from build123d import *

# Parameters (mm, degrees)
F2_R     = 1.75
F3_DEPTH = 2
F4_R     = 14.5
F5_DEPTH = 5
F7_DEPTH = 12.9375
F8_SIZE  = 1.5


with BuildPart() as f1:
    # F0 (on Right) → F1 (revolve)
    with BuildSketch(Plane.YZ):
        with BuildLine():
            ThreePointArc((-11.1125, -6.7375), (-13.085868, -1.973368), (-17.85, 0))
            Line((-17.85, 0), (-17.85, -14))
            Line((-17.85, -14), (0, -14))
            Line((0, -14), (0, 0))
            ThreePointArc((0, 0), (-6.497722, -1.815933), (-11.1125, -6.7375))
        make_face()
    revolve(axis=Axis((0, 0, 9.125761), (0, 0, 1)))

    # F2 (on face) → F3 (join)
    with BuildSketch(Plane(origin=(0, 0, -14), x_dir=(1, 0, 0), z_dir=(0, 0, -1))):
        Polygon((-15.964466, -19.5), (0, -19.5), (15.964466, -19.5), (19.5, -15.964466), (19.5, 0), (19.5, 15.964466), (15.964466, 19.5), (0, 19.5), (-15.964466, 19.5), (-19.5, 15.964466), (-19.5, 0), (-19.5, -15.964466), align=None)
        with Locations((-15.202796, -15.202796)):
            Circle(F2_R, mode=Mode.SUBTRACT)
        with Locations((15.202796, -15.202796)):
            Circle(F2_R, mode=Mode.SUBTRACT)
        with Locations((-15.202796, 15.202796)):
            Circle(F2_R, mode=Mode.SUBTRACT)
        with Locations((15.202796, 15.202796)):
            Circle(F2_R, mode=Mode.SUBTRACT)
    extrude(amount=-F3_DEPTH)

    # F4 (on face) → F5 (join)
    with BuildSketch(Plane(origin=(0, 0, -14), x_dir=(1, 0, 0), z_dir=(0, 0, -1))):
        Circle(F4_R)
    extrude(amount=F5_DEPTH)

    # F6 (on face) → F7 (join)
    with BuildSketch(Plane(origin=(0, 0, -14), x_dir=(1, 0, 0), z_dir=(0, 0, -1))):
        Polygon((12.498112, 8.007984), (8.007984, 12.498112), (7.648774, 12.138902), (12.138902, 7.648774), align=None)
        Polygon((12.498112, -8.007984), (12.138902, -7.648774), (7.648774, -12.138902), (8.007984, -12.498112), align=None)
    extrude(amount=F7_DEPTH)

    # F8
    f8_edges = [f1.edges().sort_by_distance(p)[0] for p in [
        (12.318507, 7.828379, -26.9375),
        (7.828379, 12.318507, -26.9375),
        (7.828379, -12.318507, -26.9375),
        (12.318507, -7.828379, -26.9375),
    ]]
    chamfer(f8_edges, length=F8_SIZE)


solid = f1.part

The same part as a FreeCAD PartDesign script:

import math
import FreeCAD as App
import Part
import Sketcher
from FreeCAD import Vector
Q = App.Units.Quantity


def edges_at(feature, points):
    """Names of the edges that pass closest to the given points."""
    edges = feature.Shape.Edges
    near = lambda p: min(range(len(edges)), key=lambda i: edges[i].distToShape(Part.Vertex(*p))[0])
    return sorted({f"Edge{near(p) + 1}" for p in points})


def add_polygon(sketch, points):
    """Adds a closed chain of lines whose ends are joined by coincident constraints."""
    first, n = sketch.GeometryCount, len(points)
    for a, b in zip(points, points[1:] + points[:1]):
        sketch.addGeometry(Part.LineSegment(App.Vector(*a, 0), App.Vector(*b, 0)), False)
    for i in range(n):
        sketch.addConstraint(Sketcher.Constraint("Coincident", first + i, 2, first + (i + 1) % n, 1))

doc = App.newDocument("Part")
body = doc.addObject("PartDesign::Body", "Body")

# Sketch on YZ plane
sketch1 = body.newObject("Sketcher::SketchObject", "Sketch")
sketch1.AttachmentSupport = (doc.getObject("YZ_Plane"), [""])
sketch1.MapMode = "FlatFace"
sketch1.addGeometry(Part.ArcOfCircle(Part.Circle(Vector(-17.85, -6.7375, 0), Vector(0, 0, 1), 6.7375), math.radians(-0.000002), math.radians(90.000002)), False)
sketch1.addGeometry(Part.LineSegment(Vector(-17.85, 0, 0), Vector(-17.85, -14, 0)), False)
sketch1.addGeometry(Part.LineSegment(Vector(-17.85, -14, 0), Vector(0, -14, 0)), False)
sketch1.addGeometry(Part.LineSegment(Vector(0, -14, 0), Vector(0, 0, 0)), False)
sketch1.addGeometry(Part.ArcOfCircle(Part.Circle(Vector(0.000001, -12.532956, 0), Vector(0, 0, 1), 12.532956), math.radians(90.000005), math.radians(152.456796)), False)
sketch1.addConstraint(Sketcher.Constraint("Coincident", 0, 2, 1, 1))
sketch1.addConstraint(Sketcher.Constraint("Coincident", 1, 2, 2, 1))
sketch1.addConstraint(Sketcher.Constraint("Coincident", 2, 2, 3, 1))
sketch1.addConstraint(Sketcher.Constraint("Coincident", 3, 2, 4, 1))
sketch1.addConstraint(Sketcher.Constraint("Coincident", 4, 2, 0, 1))
sketch1.addConstraint(Sketcher.Constraint("Vertical", 1))
sketch1.addConstraint(Sketcher.Constraint("Horizontal", 2))
sketch1.addConstraint(Sketcher.Constraint("Vertical", 3))
sketch1.addConstraint(Sketcher.Constraint("Coincident", 3, 2, -1, 1))
sketch1.addConstraint(Sketcher.Constraint("PointOnObject", 4, 3, -2))
sketch1.addConstraint(Sketcher.Constraint("PointOnObject", 0, 2, -1))
sketch1.addConstraint(Sketcher.Constraint("Horizontal", 0, 3, 4, 2))
sketch1.addConstraint(Sketcher.Constraint("DistanceY", 1, 2, 1, 1, Q("14 mm")))
sketch1.addConstraint(Sketcher.Constraint("DistanceX", 2, 1, 2, 2, Q("17.85 mm")))
sketch1.addConstraint(Sketcher.Constraint("Radius", 0, Q("6.7375 mm")))
sketch1.addConstraint(Sketcher.Constraint("DistanceX", 0, 3, -1, 1, Q("17.85 mm")))
revolution = body.newObject("PartDesign::Revolution", "Revolution")
revolution.Profile = sketch1
revolution.ReferenceAxis = (sketch1, ["V_Axis"])
revolution.Angle = 360

# Sketch on XY plane
sketch2 = body.newObject("Sketcher::SketchObject", "Sketch001")
sketch2.AttachmentSupport = (doc.getObject("XY_Plane"), [""])
sketch2.MapMode = "FlatFace"
sketch2.AttachmentOffset = App.Placement(Vector(0, 0, -14), App.Rotation())
add_polygon(sketch2, [(-15.964466, 19.5), (15.964466, 19.5), (19.5, 15.964466), (19.5, -15.964466), (15.964466, -19.5), (-15.964466, -19.5), (-19.5, -15.964466), (-19.5, 15.964466)])  # lines 0-7
sketch2.addGeometry(Part.Circle(Vector(-15.202796, 15.202796, 0), Vector(0, 0, 1), 1.75), False)  # 8
sketch2.addGeometry(Part.Circle(Vector(15.202796, 15.202796, 0), Vector(0, 0, 1), 1.75), False)  # 9
sketch2.addGeometry(Part.Circle(Vector(-15.202796, -15.202796, 0), Vector(0, 0, 1), 1.75), False)  # 10
sketch2.addGeometry(Part.Circle(Vector(15.202796, -15.202796, 0), Vector(0, 0, 1), 1.75), False)  # 11
sketch2.addConstraint(Sketcher.Constraint("Horizontal", 0))
sketch2.addConstraint(Sketcher.Constraint("Vertical", 2))
sketch2.addConstraint(Sketcher.Constraint("Horizontal", 4))
sketch2.addConstraint(Sketcher.Constraint("Vertical", 6))
sketch2.addConstraint(Sketcher.Constraint("Equal", 8, 9))
sketch2.addConstraint(Sketcher.Constraint("Equal", 9, 10))
sketch2.addConstraint(Sketcher.Constraint("Equal", 10, 11))
sketch2.addConstraint(Sketcher.Constraint("Symmetric", 9, 3, 10, 3, -1, 1))
sketch2.addConstraint(Sketcher.Constraint("Symmetric", 8, 3, 11, 3, -1, 1))
sketch2.addConstraint(Sketcher.Constraint("Symmetric", 0, 2, 4, 2, -1, 1))
sketch2.addConstraint(Sketcher.Constraint("Symmetric", 1, 2, 5, 2, -1, 1))
sketch2.addConstraint(Sketcher.Constraint("Symmetric", 8, 3, 9, 3, -2))
sketch2.addConstraint(Sketcher.Constraint("Perpendicular", 1, 3))
sketch2.addConstraint(Sketcher.Constraint("Perpendicular", 5, 7))
sketch2.addConstraint(Sketcher.Constraint("Horizontal", 2, 2, 5, 2))
sketch2.addConstraint(Sketcher.Constraint("Horizontal", 1, 2, 6, 2))
sketch2.addConstraint(Sketcher.Constraint("Vertical", 0, 2, 3, 2))
sketch2.addConstraint(Sketcher.Constraint("Equal", 4, 2))
sketch2.addConstraint(Sketcher.Constraint("Diameter", 8, Q("3.5 mm")))
sketch2.addConstraint(Sketcher.Constraint("Distance", 1, Q("5 mm")))
sketch2.addConstraint(Sketcher.Constraint("DistanceY", -1, 1, 0, 2, Q("19.5 mm")))
sketch2.addConstraint(Sketcher.Constraint("DistanceX", 8, 3, 9, 3, Q("30.405592 mm")))
sketch2.addConstraint(Sketcher.Constraint("DistanceY", 10, 3, 8, 3, Q("30.405592 mm")))
pad1 = body.newObject("PartDesign::Pad", "Pad")
pad1.Profile = sketch2
pad1.Length = 2

# Sketch on XY plane
sketch3 = body.newObject("Sketcher::SketchObject", "Sketch002")
sketch3.AttachmentSupport = (doc.getObject("XY_Plane"), [""])
sketch3.MapMode = "FlatFace"
sketch3.AttachmentOffset = App.Placement(Vector(0, 0, -14), App.Rotation())
sketch3.addGeometry(Part.Circle(Vector(0, 0, 0), Vector(0, 0, 1), 14.5), False)
sketch3.addConstraint(Sketcher.Constraint("Coincident", 0, 3, -1, 1))
sketch3.addConstraint(Sketcher.Constraint("Diameter", 0, Q("29 mm")))
pad2 = body.newObject("PartDesign::Pad", "Pad001")
pad2.Profile = sketch3
pad2.Length = 5
pad2.Reversed = True

# Sketch on XY plane
sketch4 = body.newObject("Sketcher::SketchObject", "Sketch003")
sketch4.AttachmentSupport = (doc.getObject("XY_Plane"), [""])
sketch4.MapMode = "FlatFace"
sketch4.AttachmentOffset = App.Placement(Vector(0, 0, -14), App.Rotation())
add_polygon(sketch4, [(12.498112, -8.007984), (8.007984, -12.498112), (7.648774, -12.138902), (12.138902, -7.648774)])  # lines 0-3
add_polygon(sketch4, [(12.498112, 8.007984), (12.138902, 7.648774), (7.648774, 12.138902), (8.007984, 12.498112)])  # lines 4-7
sketch4.addConstraint(Sketcher.Constraint("Symmetric", 2, 2, 4, 2, -1))
sketch4.addConstraint(Sketcher.Constraint("Symmetric", 1, 2, 5, 2, -1))
sketch4.addConstraint(Sketcher.Constraint("Symmetric", 0, 2, 6, 2, -1))
sketch4.addConstraint(Sketcher.Constraint("Symmetric", 3, 2, 7, 2, -1))
sketch4.addConstraint(Sketcher.Constraint("Perpendicular", 0, 1))
sketch4.addConstraint(Sketcher.Constraint("Perpendicular", 1, 2))
sketch4.addConstraint(Sketcher.Constraint("Perpendicular", 2, 3))
sketch4.addConstraint(Sketcher.Constraint("Perpendicular", 3, 4))
sketch4.addConstraint(Sketcher.Constraint("Distance", 0, Q("6.35 mm")))
sketch4.addConstraint(Sketcher.Constraint("Distance", 1, Q("0.508 mm")))
sketch4.addConstraint(Sketcher.Constraint("DistanceY", 2, 2, 4, 2, Q("15.297548 mm")))
sketch4.addConstraint(Sketcher.Constraint("DistanceX", -1, 1, 0, 2, Q("8.007984 mm")))
pad3 = body.newObject("PartDesign::Pad", "Pad002")
pad3.Profile = sketch4
pad3.Length = 12.9375
pad3.Reversed = True
doc.recompute()

chamfer = body.newObject("PartDesign::Chamfer", "Chamfer")
chamfer.Base = (pad3, edges_at(pad3, [
    (12.319, 7.828, -26.938),
    (7.828, 12.319, -26.938),
    (7.828, -12.319, -26.938),
    (12.319, -7.828, -26.938),
]))
chamfer.Size = 1.5

doc.recompute()
